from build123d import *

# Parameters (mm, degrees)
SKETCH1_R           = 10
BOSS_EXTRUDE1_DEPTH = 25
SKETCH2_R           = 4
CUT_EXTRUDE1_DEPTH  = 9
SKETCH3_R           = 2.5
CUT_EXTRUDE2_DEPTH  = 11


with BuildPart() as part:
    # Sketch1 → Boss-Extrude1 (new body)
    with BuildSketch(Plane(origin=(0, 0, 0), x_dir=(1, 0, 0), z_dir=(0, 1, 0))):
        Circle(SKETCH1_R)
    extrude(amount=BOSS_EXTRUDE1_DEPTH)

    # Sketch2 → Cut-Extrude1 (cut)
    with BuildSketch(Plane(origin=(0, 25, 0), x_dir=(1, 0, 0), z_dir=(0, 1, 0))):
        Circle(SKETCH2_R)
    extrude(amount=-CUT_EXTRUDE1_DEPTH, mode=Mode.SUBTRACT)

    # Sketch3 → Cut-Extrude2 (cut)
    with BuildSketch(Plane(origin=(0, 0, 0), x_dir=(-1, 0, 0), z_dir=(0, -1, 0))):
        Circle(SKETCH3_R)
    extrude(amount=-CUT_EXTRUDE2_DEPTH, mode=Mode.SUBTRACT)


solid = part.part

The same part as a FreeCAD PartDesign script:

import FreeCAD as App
import Part
import Sketcher
Q = App.Units.Quantity

doc = App.newDocument("Part")
params = doc.addObject("Spreadsheet::Sheet", "Params")
for row, (alias, value) in enumerate([
    ("sketch1_diameter", "20 mm"),
    ("pad1_length", "25 mm"),
    ("sketch2_diameter", "8 mm"),
    ("pocket1_length", "9 mm"),
    ("sketch3_diameter", "5 mm"),
    ("pocket2_length", "11 mm"),
], start=1):
    params.set(f"A{row}", alias)
    params.set(f"B{row}", "=" + value)
    params.setAlias(f"B{row}", alias)

body = doc.addObject("PartDesign::Body", "Body")

# Sketch on XZ plane
sketch1 = body.newObject("Sketcher::SketchObject", "Sketch")
sketch1.AttachmentSupport = (doc.getObject("XZ_Plane"), [""])
sketch1.MapMode = "FlatFace"
sketch1.addGeometry(Part.Circle(App.Vector(0, 0, 0), App.Vector(0, 0, 1), 10), False)
sketch1.addConstraint([
    Sketcher.Constraint("Coincident", 0, 3, -1, 1),
    Sketcher.Constraint("Diameter", 0, Q("20 mm")),
])
sketch1.setExpression("Constraints[1]", "Params.sketch1_diameter")
pad1 = body.newObject("PartDesign::Pad", "Pad")
pad1.Profile = sketch1
pad1.setExpression("Length", "Params.pad1_length")
pad1.Reversed = True

# Sketch on XZ plane
sketch2 = body.newObject("Sketcher::SketchObject", "Sketch001")
sketch2.AttachmentSupport = (doc.getObject("XZ_Plane"), [""])
sketch2.MapMode = "FlatFace"
sketch2.AttachmentOffset = App.Placement(App.Vector(0, 0, -25), App.Rotation())
sketch2.addGeometry(Part.Circle(App.Vector(0, 0, 0), App.Vector(0, 0, 1), 4), False)
sketch2.addConstraint([
    Sketcher.Constraint("Coincident", 0, 3, -1, 1),
    Sketcher.Constraint("Diameter", 0, Q("8 mm")),
])
sketch2.setExpression("Constraints[1]", "Params.sketch2_diameter")
pocket1 = body.newObject("PartDesign::Pocket", "Pocket")
pocket1.Profile = sketch2
pocket1.setExpression("Length", "Params.pocket1_length")
pocket1.Reversed = True

# Sketch on XZ plane
sketch3 = body.newObject("Sketcher::SketchObject", "Sketch002")
sketch3.AttachmentSupport = (doc.getObject("XZ_Plane"), [""])
sketch3.MapMode = "FlatFace"
sketch3.addGeometry(Part.Circle(App.Vector(0, 0, 0), App.Vector(0, 0, 1), 2.5), False)
sketch3.addConstraint([
    Sketcher.Constraint("Coincident", 0, 3, -1, 1),
    Sketcher.Constraint("Diameter", 0, Q("5 mm")),
])
sketch3.setExpression("Constraints[1]", "Params.sketch3_diameter")
pocket2 = body.newObject("PartDesign::Pocket", "Pocket001")
pocket2.Profile = sketch3
pocket2.setExpression("Length", "Params.pocket2_length")

doc.recompute()
